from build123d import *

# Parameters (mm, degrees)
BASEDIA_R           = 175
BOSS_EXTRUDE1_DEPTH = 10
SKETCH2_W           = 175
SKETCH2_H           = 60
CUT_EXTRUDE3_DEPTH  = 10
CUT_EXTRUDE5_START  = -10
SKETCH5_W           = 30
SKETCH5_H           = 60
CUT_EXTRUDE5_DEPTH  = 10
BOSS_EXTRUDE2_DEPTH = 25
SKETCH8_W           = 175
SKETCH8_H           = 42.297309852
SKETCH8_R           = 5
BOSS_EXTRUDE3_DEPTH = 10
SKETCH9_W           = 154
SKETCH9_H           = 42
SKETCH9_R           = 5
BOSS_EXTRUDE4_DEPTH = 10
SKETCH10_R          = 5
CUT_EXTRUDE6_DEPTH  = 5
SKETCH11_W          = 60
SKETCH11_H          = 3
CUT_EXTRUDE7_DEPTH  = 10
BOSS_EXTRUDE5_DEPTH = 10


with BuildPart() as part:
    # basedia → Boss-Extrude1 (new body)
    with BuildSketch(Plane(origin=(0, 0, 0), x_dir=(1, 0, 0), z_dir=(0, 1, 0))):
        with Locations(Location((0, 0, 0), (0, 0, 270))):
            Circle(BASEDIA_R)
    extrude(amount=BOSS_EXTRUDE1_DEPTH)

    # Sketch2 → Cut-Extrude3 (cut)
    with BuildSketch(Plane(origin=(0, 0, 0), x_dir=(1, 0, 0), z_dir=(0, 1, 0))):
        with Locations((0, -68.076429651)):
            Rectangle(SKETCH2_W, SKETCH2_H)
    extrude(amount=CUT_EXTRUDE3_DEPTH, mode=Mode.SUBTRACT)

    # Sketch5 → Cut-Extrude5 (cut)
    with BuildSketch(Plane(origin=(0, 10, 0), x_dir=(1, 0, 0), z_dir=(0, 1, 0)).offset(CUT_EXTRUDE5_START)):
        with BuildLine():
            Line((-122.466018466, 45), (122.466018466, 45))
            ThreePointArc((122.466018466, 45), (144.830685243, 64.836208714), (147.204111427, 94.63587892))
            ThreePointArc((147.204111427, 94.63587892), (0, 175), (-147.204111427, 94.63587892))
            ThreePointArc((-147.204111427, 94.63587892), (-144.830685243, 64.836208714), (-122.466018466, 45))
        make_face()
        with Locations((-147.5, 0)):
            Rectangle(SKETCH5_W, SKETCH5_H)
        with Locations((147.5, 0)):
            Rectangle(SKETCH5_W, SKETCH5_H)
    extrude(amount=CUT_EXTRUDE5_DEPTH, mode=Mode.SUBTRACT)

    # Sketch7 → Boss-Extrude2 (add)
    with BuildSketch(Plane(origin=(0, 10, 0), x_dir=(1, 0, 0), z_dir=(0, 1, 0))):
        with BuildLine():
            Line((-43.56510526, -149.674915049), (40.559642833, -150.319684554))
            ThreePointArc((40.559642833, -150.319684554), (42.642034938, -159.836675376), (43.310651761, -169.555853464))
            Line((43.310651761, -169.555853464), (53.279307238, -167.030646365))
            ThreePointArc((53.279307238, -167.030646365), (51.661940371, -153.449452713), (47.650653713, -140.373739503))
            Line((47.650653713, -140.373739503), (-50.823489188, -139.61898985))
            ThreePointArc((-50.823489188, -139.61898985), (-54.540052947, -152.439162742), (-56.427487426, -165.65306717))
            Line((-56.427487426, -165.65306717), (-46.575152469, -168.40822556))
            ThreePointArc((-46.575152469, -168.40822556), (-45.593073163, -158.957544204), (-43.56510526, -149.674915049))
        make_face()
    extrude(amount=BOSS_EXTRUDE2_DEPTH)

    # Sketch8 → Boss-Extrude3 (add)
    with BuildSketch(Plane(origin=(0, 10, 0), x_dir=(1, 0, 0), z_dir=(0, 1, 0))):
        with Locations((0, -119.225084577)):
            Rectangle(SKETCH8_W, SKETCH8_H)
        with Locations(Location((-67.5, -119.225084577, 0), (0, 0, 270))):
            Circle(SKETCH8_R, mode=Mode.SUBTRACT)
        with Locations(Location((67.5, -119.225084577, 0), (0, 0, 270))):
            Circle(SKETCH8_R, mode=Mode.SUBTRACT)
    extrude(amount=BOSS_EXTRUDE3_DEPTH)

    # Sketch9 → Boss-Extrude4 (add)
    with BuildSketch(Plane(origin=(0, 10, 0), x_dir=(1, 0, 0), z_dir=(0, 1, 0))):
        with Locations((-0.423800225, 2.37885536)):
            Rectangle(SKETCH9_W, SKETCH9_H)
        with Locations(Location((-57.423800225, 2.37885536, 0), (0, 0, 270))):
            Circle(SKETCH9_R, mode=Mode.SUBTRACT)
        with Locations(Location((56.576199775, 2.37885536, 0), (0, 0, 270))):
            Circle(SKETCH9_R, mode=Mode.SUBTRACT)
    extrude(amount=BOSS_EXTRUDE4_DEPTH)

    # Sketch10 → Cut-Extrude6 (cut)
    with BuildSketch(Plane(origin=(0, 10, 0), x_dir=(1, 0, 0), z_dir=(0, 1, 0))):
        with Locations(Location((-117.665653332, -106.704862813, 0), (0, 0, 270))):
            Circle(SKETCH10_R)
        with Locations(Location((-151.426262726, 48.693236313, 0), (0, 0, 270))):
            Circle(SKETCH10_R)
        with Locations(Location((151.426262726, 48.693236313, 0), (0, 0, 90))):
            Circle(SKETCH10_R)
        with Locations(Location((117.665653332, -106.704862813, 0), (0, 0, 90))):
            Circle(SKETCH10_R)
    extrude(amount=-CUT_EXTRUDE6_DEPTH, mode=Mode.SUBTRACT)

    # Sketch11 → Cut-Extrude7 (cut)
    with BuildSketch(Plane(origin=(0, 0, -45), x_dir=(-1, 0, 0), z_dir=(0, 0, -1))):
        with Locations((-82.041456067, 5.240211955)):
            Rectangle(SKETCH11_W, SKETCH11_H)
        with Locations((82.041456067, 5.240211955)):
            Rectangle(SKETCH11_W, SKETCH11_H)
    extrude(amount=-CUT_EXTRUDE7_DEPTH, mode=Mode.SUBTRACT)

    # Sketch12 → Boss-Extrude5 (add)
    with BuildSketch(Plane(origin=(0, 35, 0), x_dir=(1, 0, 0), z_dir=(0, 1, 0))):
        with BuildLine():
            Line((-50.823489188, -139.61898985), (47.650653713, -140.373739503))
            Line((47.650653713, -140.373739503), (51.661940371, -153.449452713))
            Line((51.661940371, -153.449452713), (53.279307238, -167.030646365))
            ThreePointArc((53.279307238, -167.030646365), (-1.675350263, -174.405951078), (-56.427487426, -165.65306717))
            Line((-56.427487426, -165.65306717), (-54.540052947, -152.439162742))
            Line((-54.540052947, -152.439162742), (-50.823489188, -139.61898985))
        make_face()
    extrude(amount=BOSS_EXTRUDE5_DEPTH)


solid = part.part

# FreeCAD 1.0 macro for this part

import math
import FreeCAD as App
import Part
import Sketcher

V = App.Vector
Q = App.Units.Quantity

doc = App.newDocument("Part")
params = doc.addObject("Spreadsheet::Sheet", "Params")
for row, (alias, value) in enumerate([
    ("sketch1_diameter", "350 mm"),
    ("pad1_length", "10 mm"),
    ("sketch2_width", "175 mm"),
    ("sketch2_height", "60 mm"),
    ("pocket1_length", "10 mm"),
    ("sketch3_radius", "175 mm"),
    ("sketch3_width", "30 mm"),
    ("sketch3_height", "60 mm"),
    ("pocket2_length", "10 mm"),
    ("pad2_length", "25 mm"),
    ("sketch5_diameter", "10 mm"),
    ("sketch5_width", "175 mm"),
    ("pad3_length", "10 mm"),
    ("sketch6_diameter", "10 mm"),
    ("sketch6_width", "154 mm"),
    ("sketch6_height", "42 mm"),
    ("pad4_length", "10 mm"),
    ("sketch7_diameter", "10 mm"),
    ("pocket3_length", "5 mm"),
    ("sketch8_width", "60 mm"),
    ("sketch8_height", "3 mm"),
    ("pocket4_length", "10 mm"),
    ("pad5_length", "10 mm"),
], start=1):
    params.set(f"A{row}", alias)
    params.set(f"B{row}", "=" + value)
    params.setAlias(f"B{row}", alias)

body = doc.addObject("PartDesign::Body", "Body")

# Sketch on XZ plane
sketch1 = body.newObject("Sketcher::SketchObject", "Sketch")
sketch1.AttachmentSupport = (doc.getObject("XZ_Plane"), [""])
sketch1.MapMode = "FlatFace"
sketch1.addGeometry(Part.Circle(V(0, 0, 0), V(0, 0, 1), 175), False)
sketch1.addConstraint([
    Sketcher.Constraint("Coincident", 0, 3, -1, 1),
    Sketcher.Constraint("Diameter", 0, Q("350 mm")),
])
sketch1.setExpression("Constraints[1]", "Params.sketch1_diameter")
pad1 = body.newObject("PartDesign::Pad", "Pad")
pad1.Profile = sketch1
pad1.setExpression("Length", "Params.pad1_length")
pad1.Reversed = True

# Sketch on XZ plane
sketch2 = body.newObject("Sketcher::SketchObject", "Sketch001")
sketch2.AttachmentSupport = (doc.getObject("XZ_Plane"), [""])
sketch2.MapMode = "FlatFace"
sketch2.addGeometry([
    Part.LineSegment(V(-88, 38, 0), V(-88, 98, 0)),
    Part.LineSegment(V(-88, 98, 0), V(88, 98, 0)),
    Part.LineSegment(V(88, 98, 0), V(88, 38, 0)),
    Part.LineSegment(V(88, 38, 0), V(-88, 38, 0)),
], False)
sketch2.addConstraint([
    Sketcher.Constraint("Coincident", 0, 2, 1, 1),
    Sketcher.Constraint("Coincident", 1, 2, 2, 1),
    Sketcher.Constraint("Coincident", 2, 2, 3, 1),
    Sketcher.Constraint("Coincident", 3, 2, 0, 1),
    Sketcher.Constraint("Vertical", 0),
    Sketcher.Constraint("Horizontal", 1),
    Sketcher.Constraint("Vertical", 2),
    Sketcher.Constraint("Horizontal", 3),
    Sketcher.Constraint("DistanceX", 1, 1, 1, 2, Q("175 mm")),
    Sketcher.Constraint("DistanceY", 0, 1, 0, 2, Q("60 mm")),
    Sketcher.Constraint("DistanceX", 0, 2, -1, 1, Q("87.5 mm")),
    Sketcher.Constraint("DistanceY", -1, 1, 0, 2, Q("98.07643 mm")),
])
sketch2.setExpression("Constraints[8]", "Params.sketch2_width")
sketch2.setExpression("Constraints[9]", "Params.sketch2_height")
pocket1 = body.newObject("PartDesign::Pocket", "Pocket")
pocket1.Profile = sketch2
pocket1.setExpression("Length", "Params.pocket1_length")

# Sketch on XZ plane
sketch3 = body.newObject("Sketcher::SketchObject", "Sketch002")
sketch3.AttachmentSupport = (doc.getObject("XZ_Plane"), [""])
sketch3.MapMode = "FlatFace"
sketch3.addGeometry([
    Part.LineSegment(V(-122, -45, 0), V(122, -45, 0)),  # 0
    Part.ArcOfCircle(Part.Circle(V(109, -83, 0), V(0, 0, 1), 40), math.radians(-17), math.radians(70)),  # 1
    Part.ArcOfCircle(Part.Circle(V(0, 0, 0), V(0, 0, 1), 175), math.radians(-147), math.radians(-33)),  # 2
    Part.ArcOfCircle(Part.Circle(V(-109, -83, 0), V(0, 0, 1), 40), math.radians(110), math.radians(197)),  # 3
    Part.LineSegment(V(-162, -30, 0), V(-162, 30, 0)),  # 4
    Part.LineSegment(V(-162, 30, 0), V(-132, 30, 0)),  # 5
    Part.LineSegment(V(-132, 30, 0), V(-132, -30, 0)),  # 6
    Part.LineSegment(V(-132, -30, 0), V(-162, -30, 0)),  # 7
    Part.LineSegment(V(132, -30, 0), V(132, 30, 0)),  # 8
    Part.LineSegment(V(132, 30, 0), V(162, 30, 0)),  # 9
    Part.LineSegment(V(162, 30, 0), V(162, -30, 0)),  # 10
    Part.LineSegment(V(162, -30, 0), V(132, -30, 0)),  # 11
], False)
sketch3.addConstraint([
    Sketcher.Constraint("Coincident", 0, 2, 1, 2),
    Sketcher.Constraint("Coincident", 1, 1, 2, 2),
    Sketcher.Constraint("Coincident", 2, 1, 3, 2),
    Sketcher.Constraint("Coincident", 3, 1, 0, 1),
    Sketcher.Constraint("Coincident", 4, 2, 5, 1),
    Sketcher.Constraint("Coincident", 5, 2, 6, 1),
    Sketcher.Constraint("Coincident", 6, 2, 7, 1),
    Sketcher.Constraint("Coincident", 7, 2, 4, 1),
    Sketcher.Constraint("Coincident", 8, 2, 9, 1),
    Sketcher.Constraint("Coincident", 9, 2, 10, 1),
    Sketcher.Constraint("Coincident", 10, 2, 11, 1),
    Sketcher.Constraint("Coincident", 11, 2, 8, 1),
    Sketcher.Constraint("Horizontal", 0),
    Sketcher.Constraint("Vertical", 4),
    Sketcher.Constraint("Horizontal", 5),
    Sketcher.Constraint("Vertical", 6),
    Sketcher.Constraint("Horizontal", 7),
    Sketcher.Constraint("Vertical", 8),
    Sketcher.Constraint("Horizontal", 9),
    Sketcher.Constraint("Vertical", 10),
    Sketcher.Constraint("Horizontal", 11),
    Sketcher.Constraint("Coincident", 2, 3, -1, 1),
    Sketcher.Constraint("Equal", 1, 3),
    Sketcher.Constraint("Symmetric", 6, 2, 8, 2, -1, 1),
    Sketcher.Constraint("Symmetric", 4, 2, 10, 2, -1, 1),
    Sketcher.Constraint("Symmetric", 1, 3, 3, 3, -2),
    Sketcher.Constraint("Horizontal", 5, 2, 8, 2),
    Sketcher.Constraint("Radius", 2, Q("175 mm")),
    Sketcher.Constraint("DistanceX", 5, 1, 5, 2, Q("30 mm")),
    Sketcher.Constraint("DistanceY", 4, 1, 4, 2, Q("60 mm")),
    Sketcher.Constraint("DistanceY", 0, 2, -1, 1, Q("45 mm")),
    Sketcher.Constraint("DistanceX", 5, 2, 8, 2, Q("265 mm")),
    Sketcher.Constraint("Radius", 1, Q("40.008621 mm")),
    Sketcher.Constraint("DistanceX", 0, 1, 0, 2, Q("244.932037 mm")),
    Sketcher.Constraint("DistanceY", 1, 3, -1, 1, Q("82.682512 mm")),
])
sketch3.setExpression("Constraints[27]", "Params.sketch3_radius")
sketch3.setExpression("Constraints[28]", "Params.sketch3_width")
sketch3.setExpression("Constraints[29]", "Params.sketch3_height")
pocket2 = body.newObject("PartDesign::Pocket", "Pocket001")
pocket2.Profile = sketch3
pocket2.setExpression("Length", "Params.pocket2_length")

# Sketch on XZ plane
sketch4 = body.newObject("Sketcher::SketchObject", "Sketch003")
sketch4.AttachmentSupport = (doc.getObject("XZ_Plane"), [""])
sketch4.MapMode = "FlatFace"
sketch4.AttachmentOffset = App.Placement(V(0, 0, -10), App.Rotation())
sketch4.addGeometry([
    Part.LineSegment(V(-44, 150, 0), V(41, 150, 0)),  # 0
    Part.ArcOfCircle(Part.Circle(V(-23, 169, 0), V(0, 0, 1), 66), math.radians(-16.55), math.radians(0.27)),  # 1
    Part.LineSegment(V(43, 170, 0), V(53, 167, 0)),  # 2
    Part.ArcOfCircle(Part.Circle(V(-23, 169, 0), V(0, 0, 1), 76), math.radians(-22), math.radians(-2)),  # 3
    Part.LineSegment(V(48, 140, 0), V(-51, 140, 0)),  # 4
    Part.ArcOfCircle(Part.Circle(V(39, 172, 0), V(0, 0, 1), 95), math.radians(-175.89), math.radians(-159.81)),  # 5
    Part.LineSegment(V(-56, 166, 0), V(-47, 168, 0)),  # 6
    Part.ArcOfCircle(Part.Circle(V(39, 172, 0), V(0, 0, 1), 85), math.radians(-177.26), math.radians(-164.48)),  # 7
], False)
sketch4.addConstraint([
    Sketcher.Constraint("Coincident", 0, 2, 1, 1),
    Sketcher.Constraint("Coincident", 1, 2, 2, 1),
    Sketcher.Constraint("Coincident", 2, 2, 3, 2),
    Sketcher.Constraint("Coincident", 3, 1, 4, 1),
    Sketcher.Constraint("Coincident", 4, 2, 5, 2),
    Sketcher.Constraint("Coincident", 5, 1, 6, 1),
    Sketcher.Constraint("Coincident", 6, 2, 7, 1),
    Sketcher.Constraint("Coincident", 7, 2, 0, 1),
    Sketcher.Constraint("Coincident", 3, 3, 1, 3),
    Sketcher.Constraint("Coincident", 7, 3, 5, 3),
    Sketcher.Constraint("Parallel", 0, 4),
    Sketcher.Constraint("Radius", 1, Q("66.455781 mm")),
    Sketcher.Constraint("Radius", 3, Q("76.455781 mm")),
    Sketcher.Constraint("DistanceX", 1, 2, 3, 1, Q("4.340002 mm")),
    Sketcher.Constraint("Radius", 5, Q("95.225654 mm")),
    Sketcher.Constraint("Radius", 7, Q("85.225654 mm")),
    Sketcher.Constraint("DistanceX", 5, 1, 4, 2, Q("5.603998 mm")),
    Sketcher.Constraint("DistanceY", 0, 2, 7, 3, Q("22.158399 mm")),
    Sketcher.Constraint("DistanceY", 2, 2, 3, 3, Q("2.214299 mm")),
    Sketcher.Constraint("Distance", 0, Q("84.127219 mm")),
    Sketcher.Constraint("Distance", 2, Q("10.283519 mm")),
    Sketcher.Constraint("DistanceX", -1, 1, 5, 3, Q("38.553271 mm")),
    Sketcher.Constraint("DistanceX", -1, 1, 1, 2, Q("43.310652 mm")),
    Sketcher.Constraint("DistanceY", -1, 1, 3, 1, Q("140.37374 mm")),
    Sketcher.Constraint("DistanceX", 4, 2, -1, 1, Q("50.823489 mm")),
    Sketcher.Constraint("DistanceY", 5, 1, 6, 2, Q("2.755158 mm")),
])
pad2 = body.newObject("PartDesign::Pad", "Pad001")
pad2.Profile = sketch4
pad2.setExpression("Length", "Params.pad2_length")
pad2.Reversed = True

# Sketch on XZ plane
sketch5 = body.newObject("Sketcher::SketchObject", "Sketch004")
sketch5.AttachmentSupport = (doc.getObject("XZ_Plane"), [""])
sketch5.MapMode = "FlatFace"
sketch5.AttachmentOffset = App.Placement(V(0, 0, -10), App.Rotation())
sketch5.addGeometry([
    Part.LineSegment(V(-88, 98, 0), V(-88, 140, 0)),  # 0
    Part.LineSegment(V(-88, 140, 0), V(88, 140, 0)),  # 1
    Part.LineSegment(V(88, 140, 0), V(88, 98, 0)),  # 2
    Part.LineSegment(V(88, 98, 0), V(-88, 98, 0)),  # 3
    Part.Circle(V(-68, 119, 0), V(0, 0, 1), 5),  # 4
    Part.Circle(V(68, 119, 0), V(0, 0, 1), 5),  # 5
], False)
sketch5.addConstraint([
    Sketcher.Constraint("Coincident", 0, 2, 1, 1),
    Sketcher.Constraint("Coincident", 1, 2, 2, 1),
    Sketcher.Constraint("Coincident", 2, 2, 3, 1),
    Sketcher.Constraint("Coincident", 3, 2, 0, 1),
    Sketcher.Constraint("Vertical", 0),
    Sketcher.Constraint("Horizontal", 1),
    Sketcher.Constraint("Vertical", 2),
    Sketcher.Constraint("Horizontal", 3),
    Sketcher.Constraint("Equal", 4, 5),
    Sketcher.Constraint("Symmetric", 4, 3, 5, 3, -2),
    Sketcher.Constraint("Diameter", 4, Q("10 mm")),
    Sketcher.Constraint("DistanceX", 1, 1, 1, 2, Q("175 mm")),
    Sketcher.Constraint("DistanceX", 4, 3, 5, 3, Q("135 mm")),
    Sketcher.Constraint("DistanceX", 0, 2, 4, 3, Q("20 mm")),
    Sketcher.Constraint("DistanceY", 0, 1, 0, 2, Q("42.29731 mm")),
    Sketcher.Constraint("DistanceY", -1, 1, 0, 2, Q("140.37374 mm")),
    Sketcher.Constraint("DistanceY", -1, 1, 4, 3, Q("119.225085 mm")),
])
sketch5.setExpression("Constraints[10]", "Params.sketch5_diameter")
sketch5.setExpression("Constraints[11]", "Params.sketch5_width")
pad3 = body.newObject("PartDesign::Pad", "Pad002")
pad3.Profile = sketch5
pad3.setExpression("Length", "Params.pad3_length")
pad3.Reversed = True

# Sketch on XZ plane
sketch6 = body.newObject("Sketcher::SketchObject", "Sketch005")
sketch6.AttachmentSupport = (doc.getObject("XZ_Plane"), [""])
sketch6.MapMode = "FlatFace"
sketch6.AttachmentOffset = App.Placement(V(0, 0, -10), App.Rotation())
sketch6.addGeometry([
    Part.LineSegment(V(-77, -23, 0), V(-77, 19, 0)),  # 0
    Part.LineSegment(V(-77, 19, 0), V(77, 19, 0)),  # 1
    Part.LineSegment(V(77, 19, 0), V(77, -23, 0)),  # 2
    Part.LineSegment(V(77, -23, 0), V(-77, -23, 0)),  # 3
    Part.Circle(V(-57, -2, 0), V(0, 0, 1), 5),  # 4
    Part.Circle(V(57, -2, 0), V(0, 0, 1), 5),  # 5
], False)
sketch6.addConstraint([
    Sketcher.Constraint("Coincident", 0, 2, 1, 1),
    Sketcher.Constraint("Coincident", 1, 2, 2, 1),
    Sketcher.Constraint("Coincident", 2, 2, 3, 1),
    Sketcher.Constraint("Coincident", 3, 2, 0, 1),
    Sketcher.Constraint("Vertical", 0),
    Sketcher.Constraint("Horizontal", 1),
    Sketcher.Constraint("Vertical", 2),
    Sketcher.Constraint("Horizontal", 3),
    Sketcher.Constraint("Equal", 4, 5),
    Sketcher.Constraint("Horizontal", 4, 3, 5, 3),
    Sketcher.Constraint("Diameter", 4, Q("10 mm")),
    Sketcher.Constraint("DistanceX", 1, 1, 1, 2, Q("154 mm")),
    Sketcher.Constraint("DistanceY", 0, 1, 0, 2, Q("42 mm")),
    Sketcher.Constraint("DistanceX", 4, 3, 5, 3, Q("114 mm")),
    Sketcher.Constraint("DistanceX", 0, 2, 4, 3, Q("20 mm")),
    Sketcher.Constraint("DistanceY", 4, 3, 0, 2, Q("21 mm")),
    Sketcher.Constraint("DistanceX", 4, 3, -1, 1, Q("57.4238 mm")),
    Sketcher.Constraint("DistanceY", 4, 3, -1, 1, Q("2.378855 mm")),
])
sketch6.setExpression("Constraints[10]", "Params.sketch6_diameter")
sketch6.setExpression("Constraints[11]", "Params.sketch6_width")
sketch6.setExpression("Constraints[12]", "Params.sketch6_height")
pad4 = body.newObject("PartDesign::Pad", "Pad003")
pad4.Profile = sketch6
pad4.setExpression("Length", "Params.pad4_length")
pad4.Reversed = True

# Sketch on XZ plane
sketch7 = body.newObject("Sketcher::SketchObject", "Sketch006")
sketch7.AttachmentSupport = (doc.getObject("XZ_Plane"), [""])
sketch7.MapMode = "FlatFace"
sketch7.AttachmentOffset = App.Placement(V(0, 0, -10), App.Rotation())
sketch7.addGeometry([
    Part.Circle(V(-118, 107, 0), V(0, 0, 1), 5),
    Part.Circle(V(-151, -49, 0), V(0, 0, 1), 5),
    Part.Circle(V(151, -49, 0), V(0, 0, 1), 5),
    Part.Circle(V(118, 107, 0), V(0, 0, 1), 5),
], False)
sketch7.addConstraint([
    Sketcher.Constraint("Equal", 0, 1),
    Sketcher.Constraint("Equal", 1, 2),
    Sketcher.Constraint("Equal", 2, 3),
    Sketcher.Constraint("Symmetric", 1, 3, 2, 3, -2),
    Sketcher.Constraint("Symmetric", 0, 3, 3, 3, -2),
    Sketcher.Constraint("Diameter", 0, Q("10 mm")),
    Sketcher.Constraint("DistanceY", 1, 3, 0, 3, Q("155.398099 mm")),
    Sketcher.Constraint("DistanceX", 1, 3, 0, 3, Q("33.760609 mm")),
    Sketcher.Constraint("DistanceX", 0, 3, -1, 1, Q("117.665653 mm")),
    Sketcher.Constraint("DistanceY", -1, 1, 0, 3, Q("106.704863 mm")),
])
sketch7.setExpression("Constraints[5]", "Params.sketch7_diameter")
pocket3 = body.newObject("PartDesign::Pocket", "Pocket002")
pocket3.Profile = sketch7
pocket3.setExpression("Length", "Params.pocket3_length")
pocket3.Reversed = True

# Sketch on XY plane
sketch8 = body.newObject("Sketcher::SketchObject", "Sketch007")
sketch8.AttachmentSupport = (doc.getObject("XY_Plane"), [""])
sketch8.MapMode = "FlatFace"
sketch8.AttachmentOffset = App.Placement(V(0, 0, -45), App.Rotation())
sketch8.addGeometry([
    Part.LineSegment(V(112, 6.7, 0), V(112, 3.7, 0)),  # 0
    Part.LineSegment(V(112, 3.7, 0), V(52, 3.7, 0)),  # 1
    Part.LineSegment(V(52, 3.7, 0), V(52, 6.7, 0)),  # 2
    Part.LineSegment(V(52, 6.7, 0), V(112, 6.7, 0)),  # 3
    Part.LineSegment(V(-52, 6.7, 0), V(-52, 3.7, 0)),  # 4
    Part.LineSegment(V(-52, 3.7, 0), V(-112, 3.7, 0)),  # 5
    Part.LineSegment(V(-112, 3.7, 0), V(-112, 6.7, 0)),  # 6
    Part.LineSegment(V(-112, 6.7, 0), V(-52, 6.7, 0)),  # 7
], False)
sketch8.addConstraint([
    Sketcher.Constraint("Coincident", 0, 2, 1, 1),
    Sketcher.Constraint("Coincident", 1, 2, 2, 1),
    Sketcher.Constraint("Coincident", 2, 2, 3, 1),
    Sketcher.Constraint("Coincident", 3, 2, 0, 1),
    Sketcher.Constraint("Coincident", 4, 2, 5, 1),
    Sketcher.Constraint("Coincident", 5, 2, 6, 1),
    Sketcher.Constraint("Coincident", 6, 2, 7, 1),
    Sketcher.Constraint("Coincident", 7, 2, 4, 1),
    Sketcher.Constraint("Vertical", 0),
    Sketcher.Constraint("Horizontal", 1),
    Sketcher.Constraint("Vertical", 2),
    Sketcher.Constraint("Horizontal", 3),
    Sketcher.Constraint("Vertical", 4),
    Sketcher.Constraint("Horizontal", 5),
    Sketcher.Constraint("Vertical", 6),
    Sketcher.Constraint("Horizontal", 7),
    Sketcher.Constraint("Symmetric", 1, 2, 4, 2, -2),
    Sketcher.Constraint("Symmetric", 3, 2, 6, 2, -2),
    Sketcher.Constraint("DistanceX", 1, 2, 1, 1, Q("60 mm")),
    Sketcher.Constraint("DistanceY", 0, 2, 0, 1, Q("3 mm")),
    Sketcher.Constraint("DistanceY", -1, 1, 0, 2, Q("3.740212 mm")),
    Sketcher.Constraint("DistanceX", -1, 1, 0, 2, Q("112.041456 mm")),
])
sketch8.setExpression("Constraints[18]", "Params.sketch8_width")
sketch8.setExpression("Constraints[19]", "Params.sketch8_height")
pocket4 = body.newObject("PartDesign::Pocket", "Pocket003")
pocket4.Profile = sketch8
pocket4.setExpression("Length", "Params.pocket4_length")
pocket4.Reversed = True

# Sketch on XZ plane
sketch9 = body.newObject("Sketcher::SketchObject", "Sketch008")
sketch9.AttachmentSupport = (doc.getObject("XZ_Plane"), [""])
sketch9.MapMode = "FlatFace"
sketch9.AttachmentOffset = App.Placement(V(0, 0, -35), App.Rotation())
sketch9.addGeometry([
    Part.LineSegment(V(48, 140, 0), V(-51, 140, 0)),  # 0
    Part.LineSegment(V(-51, 140, 0), V(-55, 152, 0)),  # 1
    Part.LineSegment(V(-55, 152, 0), V(-56, 166, 0)),  # 2
    Part.ArcOfCircle(Part.Circle(V(1, -16, 0), V(0, 0, 1), 191), math.radians(74), math.radians(107)),  # 3
    Part.LineSegment(V(53, 167, 0), V(52, 153, 0)),  # 4
    Part.LineSegment(V(52, 153, 0), V(48, 140, 0)),  # 5
], False)
sketch9.addConstraint([
    Sketcher.Constraint("Coincident", 0, 2, 1, 1),
    Sketcher.Constraint("Coincident", 1, 2, 2, 1),
    Sketcher.Constraint("Coincident", 2, 2, 3, 2),
    Sketcher.Constraint("Coincident", 3, 1, 4, 1),
    Sketcher.Constraint("Coincident", 4, 2, 5, 1),
    Sketcher.Constraint("Coincident", 5, 2, 0, 1),
    Sketcher.Constraint("Equal", 1, 2),
    Sketcher.Constraint("Equal", 4, 5),
    Sketcher.Constraint("Radius", 3, Q("190.608333 mm")),
    Sketcher.Constraint("DistanceX", 2, 2, 0, 2, Q("5.603998 mm")),
    Sketcher.Constraint("DistanceX", 2, 2, 3, 3, Q("57.145402 mm")),
    Sketcher.Constraint("Distance", 1, Q("13.348022 mm")),
    Sketcher.Constraint("Distance", 4, Q("13.67716 mm")),
    Sketcher.Constraint("DistanceX", 0, 2, -1, 1, Q("50.823489 mm")),
    Sketcher.Constraint("DistanceY", -1, 1, 0, 2, Q("139.61899 mm")),
    Sketcher.Constraint("DistanceX", -1, 1, 4, 2, Q("51.66194 mm")),
    Sketcher.Constraint("DistanceY", -1, 1, 5, 2, Q("140.37374 mm")),
    Sketcher.Constraint("DistanceY", 3, 3, 1, 2, Q("168.626519 mm")),
    Sketcher.Constraint("DistanceX", 1, 2, 3, 1, Q("107.81936 mm")),
])
pad5 = body.newObject("PartDesign::Pad", "Pad004")
pad5.Profile = sketch9
pad5.setExpression("Length", "Params.pad5_length")
pad5.Reversed = True

doc.recompute()
